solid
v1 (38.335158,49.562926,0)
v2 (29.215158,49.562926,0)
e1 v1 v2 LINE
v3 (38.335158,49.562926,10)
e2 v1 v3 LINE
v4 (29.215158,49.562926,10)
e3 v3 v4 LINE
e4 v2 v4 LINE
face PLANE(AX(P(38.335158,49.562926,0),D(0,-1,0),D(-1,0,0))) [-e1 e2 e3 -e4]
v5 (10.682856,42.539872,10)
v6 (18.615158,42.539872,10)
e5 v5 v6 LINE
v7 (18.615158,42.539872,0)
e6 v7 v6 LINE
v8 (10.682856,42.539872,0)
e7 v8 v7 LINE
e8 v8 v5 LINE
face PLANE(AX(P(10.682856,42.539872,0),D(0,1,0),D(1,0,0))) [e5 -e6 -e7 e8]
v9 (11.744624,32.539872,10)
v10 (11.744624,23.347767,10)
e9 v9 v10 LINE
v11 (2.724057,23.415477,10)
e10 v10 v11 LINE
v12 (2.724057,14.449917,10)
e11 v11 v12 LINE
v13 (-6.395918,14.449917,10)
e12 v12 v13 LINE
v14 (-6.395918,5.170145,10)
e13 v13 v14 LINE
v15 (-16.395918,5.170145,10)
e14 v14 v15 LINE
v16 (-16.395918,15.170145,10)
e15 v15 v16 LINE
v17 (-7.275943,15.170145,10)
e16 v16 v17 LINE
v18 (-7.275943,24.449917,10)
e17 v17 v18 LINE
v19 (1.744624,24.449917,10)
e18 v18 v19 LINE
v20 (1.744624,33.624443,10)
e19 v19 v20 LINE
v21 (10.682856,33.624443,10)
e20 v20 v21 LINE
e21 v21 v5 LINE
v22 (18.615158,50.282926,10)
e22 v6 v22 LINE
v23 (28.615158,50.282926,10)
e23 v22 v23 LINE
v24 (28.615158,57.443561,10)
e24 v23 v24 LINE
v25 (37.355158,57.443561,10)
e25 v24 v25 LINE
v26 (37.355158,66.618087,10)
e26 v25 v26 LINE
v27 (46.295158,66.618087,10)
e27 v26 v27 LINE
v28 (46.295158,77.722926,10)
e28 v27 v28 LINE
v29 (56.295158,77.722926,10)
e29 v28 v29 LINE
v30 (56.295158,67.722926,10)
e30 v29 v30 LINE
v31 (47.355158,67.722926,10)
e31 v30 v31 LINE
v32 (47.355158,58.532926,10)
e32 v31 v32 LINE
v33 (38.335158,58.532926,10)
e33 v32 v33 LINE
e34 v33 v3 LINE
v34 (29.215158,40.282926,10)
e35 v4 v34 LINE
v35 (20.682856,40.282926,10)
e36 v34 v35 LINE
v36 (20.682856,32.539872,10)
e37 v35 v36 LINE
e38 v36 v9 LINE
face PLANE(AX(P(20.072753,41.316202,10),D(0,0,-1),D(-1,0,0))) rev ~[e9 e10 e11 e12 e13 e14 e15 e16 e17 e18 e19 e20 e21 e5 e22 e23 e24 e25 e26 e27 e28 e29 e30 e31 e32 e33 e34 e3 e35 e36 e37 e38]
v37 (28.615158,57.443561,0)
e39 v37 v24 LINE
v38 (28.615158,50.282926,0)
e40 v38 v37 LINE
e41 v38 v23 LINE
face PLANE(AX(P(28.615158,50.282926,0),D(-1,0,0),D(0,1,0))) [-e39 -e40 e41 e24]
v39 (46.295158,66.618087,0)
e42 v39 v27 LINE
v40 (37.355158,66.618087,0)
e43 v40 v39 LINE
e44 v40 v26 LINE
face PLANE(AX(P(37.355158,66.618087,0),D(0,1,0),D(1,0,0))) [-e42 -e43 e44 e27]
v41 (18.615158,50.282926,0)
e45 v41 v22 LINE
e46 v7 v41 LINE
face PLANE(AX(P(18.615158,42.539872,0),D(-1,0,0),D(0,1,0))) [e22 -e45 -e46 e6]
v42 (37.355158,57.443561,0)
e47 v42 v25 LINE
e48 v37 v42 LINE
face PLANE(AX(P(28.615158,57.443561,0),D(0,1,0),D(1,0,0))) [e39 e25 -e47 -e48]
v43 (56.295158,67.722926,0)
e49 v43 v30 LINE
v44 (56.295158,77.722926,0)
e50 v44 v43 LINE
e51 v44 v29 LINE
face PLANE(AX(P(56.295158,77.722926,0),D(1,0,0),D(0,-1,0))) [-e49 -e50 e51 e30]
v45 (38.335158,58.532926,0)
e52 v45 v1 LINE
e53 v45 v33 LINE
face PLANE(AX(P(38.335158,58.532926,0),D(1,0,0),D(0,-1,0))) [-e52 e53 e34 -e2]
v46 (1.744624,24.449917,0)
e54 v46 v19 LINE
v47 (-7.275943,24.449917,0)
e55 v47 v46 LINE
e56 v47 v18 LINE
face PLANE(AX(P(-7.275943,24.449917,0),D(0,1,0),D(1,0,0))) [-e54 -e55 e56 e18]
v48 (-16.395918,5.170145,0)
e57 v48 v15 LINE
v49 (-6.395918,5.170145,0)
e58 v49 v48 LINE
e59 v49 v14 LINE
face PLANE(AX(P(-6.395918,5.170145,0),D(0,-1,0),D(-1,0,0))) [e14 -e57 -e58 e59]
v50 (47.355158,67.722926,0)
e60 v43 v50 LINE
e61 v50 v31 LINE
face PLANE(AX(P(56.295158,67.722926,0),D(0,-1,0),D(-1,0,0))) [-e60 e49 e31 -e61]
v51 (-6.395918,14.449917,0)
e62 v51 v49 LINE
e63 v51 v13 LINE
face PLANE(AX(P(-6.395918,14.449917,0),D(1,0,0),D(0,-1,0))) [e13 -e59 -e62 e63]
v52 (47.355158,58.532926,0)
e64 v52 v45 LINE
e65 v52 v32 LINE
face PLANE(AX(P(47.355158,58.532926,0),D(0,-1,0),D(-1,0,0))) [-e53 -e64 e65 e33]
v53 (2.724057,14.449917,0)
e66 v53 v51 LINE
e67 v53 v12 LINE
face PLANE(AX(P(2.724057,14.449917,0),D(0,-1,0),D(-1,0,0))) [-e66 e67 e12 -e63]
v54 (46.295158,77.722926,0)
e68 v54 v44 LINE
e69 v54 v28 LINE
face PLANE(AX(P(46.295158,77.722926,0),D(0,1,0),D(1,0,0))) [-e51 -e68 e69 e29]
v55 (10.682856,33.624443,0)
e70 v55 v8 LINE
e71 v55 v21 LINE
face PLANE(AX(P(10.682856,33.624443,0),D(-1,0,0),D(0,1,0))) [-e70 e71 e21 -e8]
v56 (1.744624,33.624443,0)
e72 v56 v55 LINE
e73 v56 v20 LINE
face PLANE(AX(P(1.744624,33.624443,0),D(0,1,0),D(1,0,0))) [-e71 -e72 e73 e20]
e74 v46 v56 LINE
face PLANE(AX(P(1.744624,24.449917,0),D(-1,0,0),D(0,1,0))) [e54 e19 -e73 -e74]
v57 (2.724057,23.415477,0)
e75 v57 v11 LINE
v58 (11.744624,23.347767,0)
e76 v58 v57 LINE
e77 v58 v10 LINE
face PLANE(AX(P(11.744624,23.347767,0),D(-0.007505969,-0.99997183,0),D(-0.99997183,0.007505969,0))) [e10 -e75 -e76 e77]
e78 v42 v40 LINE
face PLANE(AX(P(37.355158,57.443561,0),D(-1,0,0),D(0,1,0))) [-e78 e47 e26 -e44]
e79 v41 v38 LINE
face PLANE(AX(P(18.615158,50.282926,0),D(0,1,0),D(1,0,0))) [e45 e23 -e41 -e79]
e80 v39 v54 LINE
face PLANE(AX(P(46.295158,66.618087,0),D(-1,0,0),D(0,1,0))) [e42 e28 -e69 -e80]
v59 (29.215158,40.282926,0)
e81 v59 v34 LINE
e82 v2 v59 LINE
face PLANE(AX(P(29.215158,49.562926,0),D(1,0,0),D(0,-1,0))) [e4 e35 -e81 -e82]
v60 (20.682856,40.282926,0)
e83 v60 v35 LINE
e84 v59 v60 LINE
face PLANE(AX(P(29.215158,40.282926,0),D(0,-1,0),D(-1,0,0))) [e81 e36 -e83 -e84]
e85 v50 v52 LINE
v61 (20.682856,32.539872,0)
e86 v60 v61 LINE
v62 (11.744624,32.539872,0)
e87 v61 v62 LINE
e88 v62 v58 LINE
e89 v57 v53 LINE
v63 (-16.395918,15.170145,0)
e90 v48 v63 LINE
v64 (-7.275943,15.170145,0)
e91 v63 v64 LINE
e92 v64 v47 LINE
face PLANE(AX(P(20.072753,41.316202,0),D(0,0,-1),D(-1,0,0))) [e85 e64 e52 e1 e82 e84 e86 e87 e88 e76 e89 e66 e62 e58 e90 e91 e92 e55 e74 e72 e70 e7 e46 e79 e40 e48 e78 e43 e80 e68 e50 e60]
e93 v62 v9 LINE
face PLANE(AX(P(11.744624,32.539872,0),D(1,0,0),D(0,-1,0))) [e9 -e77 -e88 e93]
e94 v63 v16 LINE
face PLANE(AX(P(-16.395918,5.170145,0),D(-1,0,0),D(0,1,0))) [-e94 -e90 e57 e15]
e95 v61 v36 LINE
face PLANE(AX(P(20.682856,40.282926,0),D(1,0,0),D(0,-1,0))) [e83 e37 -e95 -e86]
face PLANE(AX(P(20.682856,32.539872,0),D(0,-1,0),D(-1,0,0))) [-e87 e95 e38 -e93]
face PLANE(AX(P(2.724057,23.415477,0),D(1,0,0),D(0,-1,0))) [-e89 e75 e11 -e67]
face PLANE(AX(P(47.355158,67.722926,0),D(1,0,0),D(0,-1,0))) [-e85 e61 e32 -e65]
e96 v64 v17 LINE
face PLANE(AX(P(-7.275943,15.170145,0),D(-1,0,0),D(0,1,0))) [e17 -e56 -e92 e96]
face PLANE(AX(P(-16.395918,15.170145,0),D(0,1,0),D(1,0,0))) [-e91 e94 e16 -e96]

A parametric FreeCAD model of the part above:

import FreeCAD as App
import Part
import Sketcher

V = App.Vector


def add_polygon(sketch, points):
    """Adds a closed chain of lines whose ends are joined by coincident constraints."""
    first, n = sketch.GeometryCount, len(points)
    for a, b in zip(points, points[1:] + points[:1]):
        sketch.addGeometry(Part.LineSegment(App.Vector(*a, 0), App.Vector(*b, 0)), False)
    for i in range(n):
        sketch.addConstraint(Sketcher.Constraint("Coincident", first + i, 2, first + (i + 1) % n, 1))

doc = App.newDocument("Part")
body = doc.addObject("PartDesign::Body", "Body")

# Sketch on XY plane
sketch1 = body.newObject("Sketcher::SketchObject", "Sketch")
sketch1.AttachmentSupport = (doc.getObject("XY_Plane"), [""])
sketch1.MapMode = "FlatFace"
add_polygon(sketch1, [(-7.275943, 15.170145), (-16.395918, 15.170145), (-16.395918, 5.170145), (-6.395918, 5.170145), (-6.395918, 14.449917), (2.724057, 14.449917), (2.724057, 23.415477), (11.744624, 23.347767), (11.744624, 32.539872), (20.682856, 32.539872), (20.682856, 40.282926), (29.215158, 40.282926), (29.215158, 49.562926), (38.335158, 49.562926), (38.335158, 58.532926), (47.355158, 58.532926), (47.355158, 67.722926), (56.295158, 67.722926), (56.295158, 77.722926), (46.295158, 77.722926), (46.295158, 66.618087), (37.355158, 66.618087), (37.355158, 57.443561), (28.615158, 57.443561), (28.615158, 50.282926), (18.615158, 50.282926), (18.615158, 42.539872), (10.682856, 42.539872), (10.682856, 33.624443), (1.744624, 33.624443), (1.744624, 24.449917), (-7.275943, 24.449917)])  # lines 0-31
sketch1.addConstraint([
    Sketcher.Constraint("Horizontal", 0),
    Sketcher.Constraint("Vertical", 1),
    Sketcher.Constraint("Horizontal", 2),
    Sketcher.Constraint("Vertical", 3),
    Sketcher.Constraint("Horizontal", 4),
    Sketcher.Constraint("Vertical", 5),
    Sketcher.Constraint("Vertical", 7),
    Sketcher.Constraint("Horizontal", 8),
    Sketcher.Constraint("Vertical", 9),
    Sketcher.Constraint("Horizontal", 10),
    Sketcher.Constraint("Vertical", 11),
    Sketcher.Constraint("Horizontal", 12),
    Sketcher.Constraint("Vertical", 13),
    Sketcher.Constraint("Horizontal", 14),
    Sketcher.Constraint("Vertical", 15),
    Sketcher.Constraint("Horizontal", 16),
    Sketcher.Constraint("Vertical", 17),
    Sketcher.Constraint("Horizontal", 18),
    Sketcher.Constraint("Vertical", 19),
    Sketcher.Constraint("Horizontal", 20),
    Sketcher.Constraint("Vertical", 21),
    Sketcher.Constraint("Horizontal", 22),
    Sketcher.Constraint("Vertical", 23),
    Sketcher.Constraint("Horizontal", 24),
    Sketcher.Constraint("Vertical", 25),
    Sketcher.Constraint("Horizontal", 26),
    Sketcher.Constraint("Vertical", 27),
    Sketcher.Constraint("Horizontal", 28),
    Sketcher.Constraint("Vertical", 29),
    Sketcher.Constraint("Horizontal", 30),
    Sketcher.Constraint("Vertical", 31),
    Sketcher.Constraint("Equal", 0, 4),
    Sketcher.Constraint("Equal", 2, 18),
    Sketcher.Constraint("Equal", 16, 20),
    Sketcher.Constraint("Equal", 18, 24),
    Sketcher.Constraint("Equal", 8, 28),
    Sketcher.Constraint("Equal", 24, 1),
    Sketcher.Constraint("Equal", 1, 17),
    Sketcher.Constraint("Equal", 9, 25),
    Sketcher.Constraint("Equal", 21, 29),
    Sketcher.Constraint("Equal", 3, 31),
    Sketcher.Constraint("DistanceX", 2, 1, 2, 2, 10.0),
    Sketcher.Constraint("DistanceY", 10, 2, 23, 2, 10.0),
    Sketcher.Constraint("DistanceX", 26, 2, 9, 2, 10.0),
    Sketcher.Constraint("DistanceX", 12, 1, 12, 2, 9.12),
    Sketcher.Constraint("DistanceX", 14, 1, 14, 2, 9.02),
    Sketcher.Constraint("DistanceX", 16, 1, 16, 2, 8.94),
    Sketcher.Constraint("DistanceX", 22, 2, 22, 1, 8.74),
    Sketcher.Constraint("DistanceY", 11, 1, 11, 2, 9.28),
    Sketcher.Constraint("DistanceY", 13, 1, 13, 2, 8.97),
    Sketcher.Constraint("DistanceY", 15, 1, 15, 2, 9.19),
    Sketcher.Constraint("DistanceX", 10, 1, 10, 2, 8.532302),
    Sketcher.Constraint("DistanceX", 28, 2, 28, 1, 8.938232),
    Sketcher.Constraint("DistanceY", 5, 1, 5, 2, 8.96556),
    Sketcher.Constraint("DistanceY", 19, 2, 19, 1, 11.104839),
    Sketcher.Constraint("DistanceY", 27, 2, 27, 1, 8.915429),
    Sketcher.Constraint("DistanceX", 5, 2, 8, 2, 17.958799),
    Sketcher.Constraint("Distance", 6, 9.020821),
    Sketcher.Constraint("DistanceX", 0, 2, 0, 1, 9.119975),
    Sketcher.Constraint("DistanceY", 3, 1, 3, 2, 9.279772),
    Sketcher.Constraint("DistanceY", 7, 1, 7, 2, 9.192105),
    Sketcher.Constraint("DistanceY", 9, 1, 9, 2, 7.743054),
    Sketcher.Constraint("DistanceX", 0, 2, -1, 1, 16.395918),
    Sketcher.Constraint("DistanceY", -1, 1, 21, 2, 57.443561),
])
pad1 = body.newObject("PartDesign::Pad", "Pad")
pad1.Profile = sketch1
pad1.Length = 10

doc.recompute()
